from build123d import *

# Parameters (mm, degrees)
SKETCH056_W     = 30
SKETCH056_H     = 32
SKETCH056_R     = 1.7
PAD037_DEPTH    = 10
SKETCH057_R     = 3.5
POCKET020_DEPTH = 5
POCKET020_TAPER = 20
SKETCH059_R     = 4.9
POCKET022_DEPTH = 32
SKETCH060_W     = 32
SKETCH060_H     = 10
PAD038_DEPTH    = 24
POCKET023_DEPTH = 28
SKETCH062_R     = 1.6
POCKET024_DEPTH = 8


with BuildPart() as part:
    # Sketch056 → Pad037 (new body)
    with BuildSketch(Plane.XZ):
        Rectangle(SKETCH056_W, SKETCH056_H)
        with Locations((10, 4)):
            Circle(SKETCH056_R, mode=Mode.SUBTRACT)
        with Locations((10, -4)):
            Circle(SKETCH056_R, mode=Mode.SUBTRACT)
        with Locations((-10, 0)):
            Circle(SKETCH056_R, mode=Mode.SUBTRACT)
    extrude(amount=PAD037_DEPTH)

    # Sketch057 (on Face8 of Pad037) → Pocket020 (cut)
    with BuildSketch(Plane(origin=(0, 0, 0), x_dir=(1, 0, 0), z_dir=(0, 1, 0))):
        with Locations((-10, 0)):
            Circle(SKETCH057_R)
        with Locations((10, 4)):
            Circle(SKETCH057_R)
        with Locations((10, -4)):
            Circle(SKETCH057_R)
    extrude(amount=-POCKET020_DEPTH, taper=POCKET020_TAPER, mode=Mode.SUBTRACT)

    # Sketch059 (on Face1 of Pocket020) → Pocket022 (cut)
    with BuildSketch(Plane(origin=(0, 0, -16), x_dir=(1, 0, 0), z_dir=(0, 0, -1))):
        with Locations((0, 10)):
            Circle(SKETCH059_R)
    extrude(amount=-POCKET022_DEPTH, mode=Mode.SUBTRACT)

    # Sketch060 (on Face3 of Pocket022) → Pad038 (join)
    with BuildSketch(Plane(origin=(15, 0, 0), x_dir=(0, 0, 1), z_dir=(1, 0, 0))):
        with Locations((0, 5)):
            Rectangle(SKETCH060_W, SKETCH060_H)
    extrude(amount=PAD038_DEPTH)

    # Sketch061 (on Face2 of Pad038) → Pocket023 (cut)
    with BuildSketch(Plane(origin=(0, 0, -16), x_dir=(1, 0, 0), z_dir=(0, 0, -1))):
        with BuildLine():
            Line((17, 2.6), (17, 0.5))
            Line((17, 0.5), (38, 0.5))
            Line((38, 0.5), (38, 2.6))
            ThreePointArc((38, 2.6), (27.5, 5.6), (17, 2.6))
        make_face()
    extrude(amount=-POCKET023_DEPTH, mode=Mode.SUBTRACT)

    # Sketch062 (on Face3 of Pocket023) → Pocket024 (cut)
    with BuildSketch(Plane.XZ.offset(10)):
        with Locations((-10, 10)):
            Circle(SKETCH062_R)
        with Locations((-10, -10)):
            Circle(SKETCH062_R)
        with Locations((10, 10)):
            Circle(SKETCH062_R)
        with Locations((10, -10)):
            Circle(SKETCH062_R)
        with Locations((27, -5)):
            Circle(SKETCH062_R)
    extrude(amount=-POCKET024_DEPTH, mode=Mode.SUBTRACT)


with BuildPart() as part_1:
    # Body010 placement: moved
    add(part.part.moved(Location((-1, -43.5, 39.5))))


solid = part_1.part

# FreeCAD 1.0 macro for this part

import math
import FreeCAD as App
import Part
import Sketcher
from FreeCAD import Vector
Q = App.Units.Quantity


def add_polygon(sketch, points):
    """Adds a closed chain of lines whose ends are joined by coincident constraints."""
    first, n = sketch.GeometryCount, len(points)
    for a, b in zip(points, points[1:] + points[:1]):
        sketch.addGeometry(Part.LineSegment(App.Vector(*a, 0), App.Vector(*b, 0)), False)
    for i in range(n):
        sketch.addConstraint(Sketcher.Constraint("Coincident", first + i, 2, first + (i + 1) % n, 1))

doc = App.newDocument("Part")
body = doc.addObject("PartDesign::Body", "Body")

# Sketch on XZ plane
sketch1 = body.newObject("Sketcher::SketchObject", "Sketch")
sketch1.AttachmentSupport = (doc.getObject("XZ_Plane"), [""])
sketch1.MapMode = "FlatFace"
add_polygon(sketch1, [(-15, 16), (-15, -16), (15, -16), (15, 16)])  # lines 0-3
sketch1.addGeometry(Part.Circle(Vector(10, -4, 0), Vector(0, 0, 1), 1.7), False)  # 4
sketch1.addGeometry(Part.Circle(Vector(-10, 0, 0), Vector(0, 0, 1), 1.7), False)  # 5
sketch1.addGeometry(Part.Circle(Vector(10, 4, 0), Vector(0, 0, 1), 1.7), False)  # 6
sketch1.addConstraint([
    Sketcher.Constraint("Vertical", 0),
    Sketcher.Constraint("Horizontal", 1),
    Sketcher.Constraint("Vertical", 2),
    Sketcher.Constraint("Horizontal", 3),
    Sketcher.Constraint("Equal", 4, 5),
    Sketcher.Constraint("Equal", 5, 6),
    Sketcher.Constraint("Symmetric", 0, 2, 2, 2, -1, 1),
    Sketcher.Constraint("Symmetric", 4, 3, 6, 3, -1),
    Sketcher.Constraint("PointOnObject", 5, 3, -1),
    Sketcher.Constraint("Diameter", 4, Q("3.4 mm")),
    Sketcher.Constraint("DistanceX", 1, 1, 1, 2, Q("30 mm")),
    Sketcher.Constraint("DistanceY", 0, 2, 0, 1, Q("32 mm")),
    Sketcher.Constraint("DistanceX", -1, 1, 4, 3, Q("10 mm")),
    Sketcher.Constraint("DistanceY", 4, 3, -1, 1, Q("4 mm")),
    Sketcher.Constraint("DistanceX", 5, 3, -1, 1, Q("10 mm")),
])
pad1 = body.newObject("PartDesign::Pad", "Pad")
pad1.Profile = sketch1
pad1.Length = 10

# Sketch on XZ plane
sketch2 = body.newObject("Sketcher::SketchObject", "Sketch001")
sketch2.AttachmentSupport = (doc.getObject("XZ_Plane"), [""])
sketch2.MapMode = "FlatFace"
sketch2.addGeometry([
    Part.Circle(Vector(-10, 0, 0), Vector(0, 0, 1), 3.5),
    Part.Circle(Vector(10, -4, 0), Vector(0, 0, 1), 3.5),
    Part.Circle(Vector(10, 4, 0), Vector(0, 0, 1), 3.5),
], False)
sketch2.addConstraint([
    Sketcher.Constraint("Equal", 0, 1),
    Sketcher.Constraint("Equal", 1, 2),
    Sketcher.Constraint("Symmetric", 1, 3, 2, 3, -1),
    Sketcher.Constraint("PointOnObject", 0, 3, -1),
    Sketcher.Constraint("Diameter", 0, Q("7 mm")),
    Sketcher.Constraint("DistanceX", 0, 3, -1, 1, Q("10 mm")),
    Sketcher.Constraint("DistanceX", -1, 1, 1, 3, Q("10 mm")),
    Sketcher.Constraint("DistanceY", 1, 3, -1, 1, Q("4 mm")),
])
pocket1 = body.newObject("PartDesign::Pocket", "Pocket")
pocket1.Profile = sketch2
pocket1.Length = 5
pocket1.Reversed = True
pocket1.TaperAngle = -20

# Sketch on XY plane
sketch3 = body.newObject("Sketcher::SketchObject", "Sketch002")
sketch3.AttachmentSupport = (doc.getObject("XY_Plane"), [""])
sketch3.MapMode = "FlatFace"
sketch3.AttachmentOffset = App.Placement(Vector(0, 0, -16), App.Rotation())
sketch3.addGeometry(Part.Circle(Vector(0, -10, 0), Vector(0, 0, 1), 4.9), False)
sketch3.addConstraint([
    Sketcher.Constraint("PointOnObject", 0, 3, -2),
    Sketcher.Constraint("Diameter", 0, Q("9.8 mm")),
    Sketcher.Constraint("DistanceY", 0, 3, -1, 1, Q("10 mm")),
])
pocket2 = body.newObject("PartDesign::Pocket", "Pocket001")
pocket2.Profile = sketch3
pocket2.Length = 32
pocket2.Reversed = True

# Sketch on YZ plane
sketch4 = body.newObject("Sketcher::SketchObject", "Sketch003")
sketch4.AttachmentSupport = (doc.getObject("YZ_Plane"), [""])
sketch4.MapMode = "FlatFace"
sketch4.AttachmentOffset = App.Placement(Vector(0, 0, 15), App.Rotation())
add_polygon(sketch4, [(-10, -16), (0, -16), (0, 16), (-10, 16)])  # lines 0-3
sketch4.addConstraint([
    Sketcher.Constraint("Horizontal", 0),
    Sketcher.Constraint("Vertical", 1),
    Sketcher.Constraint("Horizontal", 2),
    Sketcher.Constraint("Vertical", 3),
    Sketcher.Constraint("Symmetric", 0, 2, 1, 2, -1, 1),
    Sketcher.Constraint("DistanceX", 0, 1, 0, 2, Q("10 mm")),
    Sketcher.Constraint("DistanceY", 1, 1, 1, 2, Q("32 mm")),
])
pad2 = body.newObject("PartDesign::Pad", "Pad001")
pad2.Profile = sketch4
pad2.Length = 24

# Sketch on XY plane
sketch5 = body.newObject("Sketcher::SketchObject", "Sketch004")
sketch5.AttachmentSupport = (doc.getObject("XY_Plane"), [""])
sketch5.MapMode = "FlatFace"
sketch5.AttachmentOffset = App.Placement(Vector(0, 0, -16), App.Rotation())
sketch5.addGeometry([
    Part.LineSegment(Vector(17, -2.6, 0), Vector(17, -0.5, 0)),
    Part.LineSegment(Vector(17, -0.5, 0), Vector(38, -0.5, 0)),
    Part.LineSegment(Vector(38, -0.5, 0), Vector(38, -2.6, 0)),
    Part.ArcOfCircle(Part.Circle(Vector(27.5, 14.275, 0), Vector(0, 0, 1), 19.875), math.radians(-121.890792), math.radians(-58.109208)),
], False)
sketch5.addConstraint([
    Sketcher.Constraint("Coincident", 0, 2, 1, 1),
    Sketcher.Constraint("Coincident", 1, 2, 2, 1),
    Sketcher.Constraint("Coincident", 2, 2, 3, 2),
    Sketcher.Constraint("Coincident", 3, 1, 0, 1),
    Sketcher.Constraint("Vertical", 0),
    Sketcher.Constraint("Horizontal", 1),
    Sketcher.Constraint("Vertical", 2),
    Sketcher.Constraint("Horizontal", 2, 2, 3, 1),
    Sketcher.Constraint("DistanceX", 1, 1, 1, 2, Q("21 mm")),
    Sketcher.Constraint("DistanceY", 0, 1, 0, 2, Q("2.1 mm")),
    Sketcher.Constraint("DistanceX", -1, 1, 0, 2, Q("17 mm")),
    Sketcher.Constraint("Radius", 3, Q("19.875 mm")),
    Sketcher.Constraint("DistanceY", 0, 2, -1, 1, Q("0.5 mm")),
])
pocket3 = body.newObject("PartDesign::Pocket", "Pocket002")
pocket3.Profile = sketch5
pocket3.Length = 28
pocket3.Reversed = True

# Sketch on XZ plane
sketch6 = body.newObject("Sketcher::SketchObject", "Sketch005")
sketch6.AttachmentSupport = (doc.getObject("XZ_Plane"), [""])
sketch6.MapMode = "FlatFace"
sketch6.AttachmentOffset = App.Placement(Vector(0, 0, 10), App.Rotation())
sketch6.addGeometry([
    Part.Circle(Vector(-10, 10, 0), Vector(0, 0, 1), 1.6),  # 0
    Part.Circle(Vector(-10, -10, 0), Vector(0, 0, 1), 1.6),  # 1
    Part.Circle(Vector(10, 10, 0), Vector(0, 0, 1), 1.6),  # 2
    Part.Circle(Vector(10, -10, 0), Vector(0, 0, 1), 1.6),  # 3
    Part.Circle(Vector(27, -5, 0), Vector(0, 0, 1), 1.6),  # 4
], False)
sketch6.addConstraint([
    Sketcher.Constraint("Equal", 0, 1),
    Sketcher.Constraint("Equal", 1, 2),
    Sketcher.Constraint("Equal", 2, 3),
    Sketcher.Constraint("Equal", 3, 4),
    Sketcher.Constraint("Symmetric", 1, 3, 2, 3, -1, 1),
    Sketcher.Constraint("Symmetric", 0, 3, 3, 3, -1, 1),
    Sketcher.Constraint("Symmetric", 0, 3, 2, 3, -2),
    Sketcher.Constraint("Diameter", 0, Q("3.2 mm")),
    Sketcher.Constraint("DistanceX", 0, 3, -1, 1, Q("10 mm")),
    Sketcher.Constraint("DistanceY", -1, 1, 0, 3, Q("10 mm")),
    Sketcher.Constraint("DistanceX", -1, 1, 4, 3, Q("27 mm")),
    Sketcher.Constraint("DistanceY", 4, 3, -1, 1, Q("5 mm")),
])
pocket4 = body.newObject("PartDesign::Pocket", "Pocket003")
pocket4.Profile = sketch6
pocket4.Length = 8
body2 = doc.addObject("PartDesign::Body", "Body001")
doc.recompute()

body.Placement = App.Placement(Vector(-1, -43.5, 39.5), App.Rotation(Vector(0, 0, 1), 0))
boolean = body2.newObject("PartDesign::Boolean", "Boolean")
boolean.Type = "Fuse"
boolean.addObjects([body])

doc.recompute()
